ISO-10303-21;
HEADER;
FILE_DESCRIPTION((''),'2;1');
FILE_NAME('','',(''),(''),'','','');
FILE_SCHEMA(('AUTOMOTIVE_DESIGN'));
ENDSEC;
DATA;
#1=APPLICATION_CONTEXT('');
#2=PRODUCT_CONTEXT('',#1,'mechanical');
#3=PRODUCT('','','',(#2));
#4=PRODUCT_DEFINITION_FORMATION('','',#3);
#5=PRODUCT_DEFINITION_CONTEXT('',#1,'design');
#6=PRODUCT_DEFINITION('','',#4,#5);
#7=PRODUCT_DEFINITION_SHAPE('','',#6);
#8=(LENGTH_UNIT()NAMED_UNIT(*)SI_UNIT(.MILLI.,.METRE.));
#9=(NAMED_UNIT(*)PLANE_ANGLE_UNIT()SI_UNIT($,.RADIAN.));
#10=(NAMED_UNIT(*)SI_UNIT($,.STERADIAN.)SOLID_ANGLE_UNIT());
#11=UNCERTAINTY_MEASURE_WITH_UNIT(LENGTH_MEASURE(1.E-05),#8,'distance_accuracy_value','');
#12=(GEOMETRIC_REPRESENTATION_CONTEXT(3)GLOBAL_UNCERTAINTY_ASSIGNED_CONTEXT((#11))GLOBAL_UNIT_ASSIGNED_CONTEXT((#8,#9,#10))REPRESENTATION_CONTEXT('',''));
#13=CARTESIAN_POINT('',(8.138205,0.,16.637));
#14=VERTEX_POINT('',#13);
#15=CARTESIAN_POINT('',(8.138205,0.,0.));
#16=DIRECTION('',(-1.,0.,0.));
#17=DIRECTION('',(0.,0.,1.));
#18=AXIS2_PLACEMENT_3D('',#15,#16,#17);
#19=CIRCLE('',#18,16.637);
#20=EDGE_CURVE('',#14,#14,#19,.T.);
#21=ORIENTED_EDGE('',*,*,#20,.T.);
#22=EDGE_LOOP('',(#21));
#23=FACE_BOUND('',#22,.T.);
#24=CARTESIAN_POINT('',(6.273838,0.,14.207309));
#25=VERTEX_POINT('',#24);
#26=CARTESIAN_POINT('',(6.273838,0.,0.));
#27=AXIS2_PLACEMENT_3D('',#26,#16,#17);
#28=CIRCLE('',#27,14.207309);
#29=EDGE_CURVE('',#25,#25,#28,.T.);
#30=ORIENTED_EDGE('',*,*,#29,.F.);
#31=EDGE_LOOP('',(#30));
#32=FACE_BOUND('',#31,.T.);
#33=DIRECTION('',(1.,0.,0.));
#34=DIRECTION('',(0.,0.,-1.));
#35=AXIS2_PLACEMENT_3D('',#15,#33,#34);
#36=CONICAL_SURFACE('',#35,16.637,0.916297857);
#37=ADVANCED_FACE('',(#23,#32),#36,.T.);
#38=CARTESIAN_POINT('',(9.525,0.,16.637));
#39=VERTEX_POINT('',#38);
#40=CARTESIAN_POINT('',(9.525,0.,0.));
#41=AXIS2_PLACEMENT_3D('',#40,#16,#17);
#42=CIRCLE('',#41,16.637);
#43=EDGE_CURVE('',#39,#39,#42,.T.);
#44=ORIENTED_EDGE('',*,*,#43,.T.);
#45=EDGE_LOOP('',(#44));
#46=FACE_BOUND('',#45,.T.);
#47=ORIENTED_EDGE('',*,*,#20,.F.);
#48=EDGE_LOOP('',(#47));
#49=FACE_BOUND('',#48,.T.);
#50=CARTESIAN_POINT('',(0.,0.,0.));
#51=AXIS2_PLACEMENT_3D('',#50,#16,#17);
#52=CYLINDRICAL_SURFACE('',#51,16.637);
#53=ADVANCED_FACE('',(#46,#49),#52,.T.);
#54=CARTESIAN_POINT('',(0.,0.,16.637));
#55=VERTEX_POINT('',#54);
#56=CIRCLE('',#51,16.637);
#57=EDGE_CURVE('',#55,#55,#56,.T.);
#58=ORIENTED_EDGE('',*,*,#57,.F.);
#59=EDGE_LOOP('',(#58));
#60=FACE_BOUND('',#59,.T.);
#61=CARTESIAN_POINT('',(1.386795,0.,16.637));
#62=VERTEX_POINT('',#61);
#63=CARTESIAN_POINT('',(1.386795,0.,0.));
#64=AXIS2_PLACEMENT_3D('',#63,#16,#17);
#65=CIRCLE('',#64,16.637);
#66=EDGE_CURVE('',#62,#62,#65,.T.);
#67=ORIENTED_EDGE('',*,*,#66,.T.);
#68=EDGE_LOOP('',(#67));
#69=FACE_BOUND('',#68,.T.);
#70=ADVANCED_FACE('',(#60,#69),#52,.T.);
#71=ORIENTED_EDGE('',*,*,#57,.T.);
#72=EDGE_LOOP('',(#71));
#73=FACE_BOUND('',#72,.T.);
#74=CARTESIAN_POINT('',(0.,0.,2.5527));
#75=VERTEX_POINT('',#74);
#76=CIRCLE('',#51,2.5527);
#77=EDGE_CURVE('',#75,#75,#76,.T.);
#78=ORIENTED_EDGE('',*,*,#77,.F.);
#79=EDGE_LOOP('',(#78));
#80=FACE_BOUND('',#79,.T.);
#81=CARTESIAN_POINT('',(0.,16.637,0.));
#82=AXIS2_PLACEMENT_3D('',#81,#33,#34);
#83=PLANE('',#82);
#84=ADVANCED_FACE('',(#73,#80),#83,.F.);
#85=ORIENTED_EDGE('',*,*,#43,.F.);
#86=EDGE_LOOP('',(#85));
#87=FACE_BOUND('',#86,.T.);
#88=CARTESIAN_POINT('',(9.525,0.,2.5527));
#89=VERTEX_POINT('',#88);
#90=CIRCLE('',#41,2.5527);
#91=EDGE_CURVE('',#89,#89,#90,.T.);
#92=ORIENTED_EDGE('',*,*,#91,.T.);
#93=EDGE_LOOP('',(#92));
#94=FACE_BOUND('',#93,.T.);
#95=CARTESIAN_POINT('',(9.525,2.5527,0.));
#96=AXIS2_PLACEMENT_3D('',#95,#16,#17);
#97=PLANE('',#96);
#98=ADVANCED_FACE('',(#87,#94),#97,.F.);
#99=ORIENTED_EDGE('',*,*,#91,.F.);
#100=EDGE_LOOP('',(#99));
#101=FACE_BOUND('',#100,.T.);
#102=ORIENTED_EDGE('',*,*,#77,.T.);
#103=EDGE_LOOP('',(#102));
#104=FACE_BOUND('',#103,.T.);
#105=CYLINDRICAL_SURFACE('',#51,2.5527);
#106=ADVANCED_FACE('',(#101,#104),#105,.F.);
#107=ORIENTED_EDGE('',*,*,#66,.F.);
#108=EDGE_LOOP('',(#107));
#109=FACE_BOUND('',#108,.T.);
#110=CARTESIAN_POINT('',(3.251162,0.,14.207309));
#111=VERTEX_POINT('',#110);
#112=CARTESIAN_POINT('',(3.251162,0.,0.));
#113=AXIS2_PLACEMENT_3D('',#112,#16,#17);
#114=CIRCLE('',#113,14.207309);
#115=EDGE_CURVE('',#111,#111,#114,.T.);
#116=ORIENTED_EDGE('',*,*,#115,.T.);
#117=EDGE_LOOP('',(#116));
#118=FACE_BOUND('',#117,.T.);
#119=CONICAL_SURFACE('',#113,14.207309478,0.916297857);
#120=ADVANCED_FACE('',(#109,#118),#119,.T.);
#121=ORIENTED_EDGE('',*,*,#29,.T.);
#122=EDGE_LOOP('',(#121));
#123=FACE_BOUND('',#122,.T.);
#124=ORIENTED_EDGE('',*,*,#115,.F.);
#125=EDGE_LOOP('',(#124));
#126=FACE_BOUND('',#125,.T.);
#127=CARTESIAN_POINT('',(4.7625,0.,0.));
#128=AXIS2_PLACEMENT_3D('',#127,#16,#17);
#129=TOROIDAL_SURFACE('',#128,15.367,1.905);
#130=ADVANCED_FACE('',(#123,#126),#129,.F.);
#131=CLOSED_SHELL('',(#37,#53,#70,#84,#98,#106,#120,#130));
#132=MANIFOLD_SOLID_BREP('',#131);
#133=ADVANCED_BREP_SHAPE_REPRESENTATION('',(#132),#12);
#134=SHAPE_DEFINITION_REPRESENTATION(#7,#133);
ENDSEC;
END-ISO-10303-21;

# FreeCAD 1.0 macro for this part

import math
import FreeCAD as App
import Part
import Sketcher

V = App.Vector
Q = App.Units.Quantity

doc = App.newDocument("Part")
params = doc.addObject("Spreadsheet::Sheet", "Params")
for row, (alias, value) in enumerate([
    ("sketch1_radius", "0.075 in"),
    ("sketch1_width", "0.375 in"),
    ("revolution_angle", "360 deg"),
], start=1):
    params.set(f"A{row}", alias)
    params.set(f"B{row}", "=" + value)
    params.setAlias(f"B{row}", alias)

body = doc.addObject("PartDesign::Body", "Body")

# Sketch on XY plane
sketch1 = body.newObject("Sketcher::SketchObject", "Sketch")
sketch1.AttachmentSupport = (doc.getObject("XY_Plane"), [""])
sketch1.MapMode = "FlatFace"
sketch1.addGeometry([
    Part.LineSegment(V(0, 2.5527, 0), V(9.525, 2.5527, 0)),  # 0
    Part.LineSegment(V(9.525, 2.5527, 0), V(9.525, 16.637, 0)),  # 1
    Part.LineSegment(V(9.525, 16.637, 0), V(8.138205, 16.637, 0)),  # 2
    Part.LineSegment(V(8.138205, 16.637, 0), V(6.273838, 14.207309, 0)),  # 3
    Part.ArcOfCircle(Part.Circle(V(4.7625, 15.367, 0), V(0, 0, 1), 1.905), math.radians(-142.5), math.radians(-37.5)),  # 4
    Part.LineSegment(V(3.251162, 14.207309, 0), V(1.386795, 16.637, 0)),  # 5
    Part.LineSegment(V(1.386795, 16.637, 0), V(0, 16.637, 0)),  # 6
    Part.LineSegment(V(0, 16.637, 0), V(0, 2.5527, 0)),  # 7
], False)
sketch1.addConstraint([
    Sketcher.Constraint("Coincident", 0, 2, 1, 1),
    Sketcher.Constraint("Coincident", 1, 2, 2, 1),
    Sketcher.Constraint("Coincident", 2, 2, 3, 1),
    Sketcher.Constraint("Tangent", 3, 2, 4, 2),
    Sketcher.Constraint("Tangent", 4, 1, 5, 1),
    Sketcher.Constraint("Coincident", 5, 2, 6, 1),
    Sketcher.Constraint("Coincident", 6, 2, 7, 1),
    Sketcher.Constraint("Coincident", 7, 2, 0, 1),
    Sketcher.Constraint("Horizontal", 0),
    Sketcher.Constraint("Vertical", 1),
    Sketcher.Constraint("Horizontal", 2),
    Sketcher.Constraint("Horizontal", 6),
    Sketcher.Constraint("Vertical", 7),
    Sketcher.Constraint("PointOnObject", 6, 2, -2),
    Sketcher.Constraint("Horizontal", 3, 2, 4, 1),
    Sketcher.Constraint("Horizontal", 2, 2, 5, 2),
    Sketcher.Constraint("Equal", 2, 6),
    Sketcher.Constraint("Radius", 4, Q("0.075 in")),
    Sketcher.Constraint("Angle", 3, Q("-127.5 deg")),
    Sketcher.Constraint("DistanceX", 0, 1, 0, 2, Q("0.375 in")),
    Sketcher.Constraint("DistanceY", 4, 3, 1, 2, Q("0.05 in")),
    Sketcher.Constraint("DistanceY", 1, 1, 1, 2, Q("0.5545 in")),
    Sketcher.Constraint("DistanceY", -1, 1, 4, 3, Q("0.605 in")),
])
sketch1.setExpression("Constraints[17]", "Params.sketch1_radius")
sketch1.setExpression("Constraints[19]", "Params.sketch1_width")
revolution = body.newObject("PartDesign::Revolution", "Revolution")
revolution.Profile = sketch1
revolution.ReferenceAxis = (sketch1, ["H_Axis"])
revolution.setExpression("Angle", "Params.revolution_angle")

doc.recompute()
